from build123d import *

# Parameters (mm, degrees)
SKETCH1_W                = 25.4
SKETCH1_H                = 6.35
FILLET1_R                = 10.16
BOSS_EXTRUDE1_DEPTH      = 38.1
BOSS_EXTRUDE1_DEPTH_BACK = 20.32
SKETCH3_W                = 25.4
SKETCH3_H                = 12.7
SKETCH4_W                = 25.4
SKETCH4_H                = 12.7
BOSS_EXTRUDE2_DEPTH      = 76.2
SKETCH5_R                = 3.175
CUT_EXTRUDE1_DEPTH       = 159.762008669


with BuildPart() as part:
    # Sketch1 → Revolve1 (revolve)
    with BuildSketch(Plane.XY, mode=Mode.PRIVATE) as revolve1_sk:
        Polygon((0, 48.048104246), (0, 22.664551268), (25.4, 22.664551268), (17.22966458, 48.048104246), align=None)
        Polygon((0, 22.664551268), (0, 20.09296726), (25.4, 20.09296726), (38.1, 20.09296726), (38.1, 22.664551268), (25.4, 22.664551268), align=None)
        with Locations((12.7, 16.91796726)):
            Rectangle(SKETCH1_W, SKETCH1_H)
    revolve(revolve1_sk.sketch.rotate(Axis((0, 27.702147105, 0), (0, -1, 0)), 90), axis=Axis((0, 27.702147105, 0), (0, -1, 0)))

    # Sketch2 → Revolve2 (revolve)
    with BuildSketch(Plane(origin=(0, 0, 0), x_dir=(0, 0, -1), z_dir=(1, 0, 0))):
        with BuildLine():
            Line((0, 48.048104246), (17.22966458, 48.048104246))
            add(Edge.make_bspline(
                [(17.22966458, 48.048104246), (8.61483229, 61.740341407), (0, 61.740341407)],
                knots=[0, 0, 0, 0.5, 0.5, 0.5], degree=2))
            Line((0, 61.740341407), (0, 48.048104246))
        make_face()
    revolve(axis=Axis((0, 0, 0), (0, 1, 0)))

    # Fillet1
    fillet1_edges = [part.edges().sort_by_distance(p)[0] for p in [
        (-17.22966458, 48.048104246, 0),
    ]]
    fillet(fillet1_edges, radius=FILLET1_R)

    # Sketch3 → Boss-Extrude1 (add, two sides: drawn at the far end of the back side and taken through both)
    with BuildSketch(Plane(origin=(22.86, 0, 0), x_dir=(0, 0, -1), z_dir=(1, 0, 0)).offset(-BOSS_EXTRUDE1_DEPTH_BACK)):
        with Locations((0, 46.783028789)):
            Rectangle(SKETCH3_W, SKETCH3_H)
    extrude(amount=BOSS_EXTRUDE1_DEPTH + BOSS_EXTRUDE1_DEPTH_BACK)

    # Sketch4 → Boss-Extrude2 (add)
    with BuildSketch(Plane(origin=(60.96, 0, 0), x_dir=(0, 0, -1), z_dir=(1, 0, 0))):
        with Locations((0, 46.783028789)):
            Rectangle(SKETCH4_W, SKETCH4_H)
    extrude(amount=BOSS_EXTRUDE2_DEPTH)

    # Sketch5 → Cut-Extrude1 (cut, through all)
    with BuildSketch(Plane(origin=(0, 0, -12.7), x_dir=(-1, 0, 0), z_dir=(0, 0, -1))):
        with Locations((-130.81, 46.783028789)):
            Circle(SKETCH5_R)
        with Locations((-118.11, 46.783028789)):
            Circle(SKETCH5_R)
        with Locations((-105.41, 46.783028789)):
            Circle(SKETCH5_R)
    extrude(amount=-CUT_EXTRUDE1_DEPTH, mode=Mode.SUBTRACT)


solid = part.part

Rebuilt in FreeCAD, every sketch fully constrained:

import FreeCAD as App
import Part
import Sketcher

V = App.Vector
Q = App.Units.Quantity


def edges_at(feature, points):
    """Names of the edges that pass closest to the given points."""
    edges = feature.Shape.Edges
    near = lambda p: min(range(len(edges)), key=lambda i: edges[i].distToShape(Part.Vertex(*p))[0])
    return sorted({f"Edge{near(p) + 1}" for p in points})

doc = App.newDocument("Part")
params = doc.addObject("Spreadsheet::Sheet", "Params")
for row, (alias, value) in enumerate([
    ("sketch1_width", "1 in"),
    ("sketch1_width2", "0.5 in"),
    ("sketch1_height", "0.25 in"),
    ("revolution_angle", "360 deg"),
    ("revolution2_angle", "360 deg"),
    ("fillet_radius", "0.4 in"),
    ("sketch3_height", "1 in"),
    ("sketch3_width", "0.5 in"),
    ("pad1_length", "1.5 in"),
    ("pad1_length2", "0.8 in"),
    ("sketch4_height", "1 in"),
    ("sketch4_width", "0.5 in"),
    ("pad2_length", "3 in"),
    ("sketch5_diameter", "0.25 in"),
], start=1):
    params.set(f"A{row}", alias)
    params.set(f"B{row}", "=" + value)
    params.setAlias(f"B{row}", alias)

body = doc.addObject("PartDesign::Body", "Body")

sketch1 = body.newObject("Sketcher::SketchObject", "Sketch")
sketch1.AttachmentSupport = (doc.getObject("XY_Plane"), [""])
sketch1.MapMode = "FlatFace"
sketch1.addGeometry(Part.LineSegment(V(0, 48.048104, 0), V(0, 13.742967, 0)), False)
sketch1.addGeometry(Part.LineSegment(V(0, 13.742967, 0), V(25.4, 13.742967, 0)), False)
sketch1.addGeometry(Part.LineSegment(V(25.4, 13.742967, 0), V(25.4, 20.092967, 0)), False)
sketch1.addGeometry(Part.LineSegment(V(25.4, 20.092967, 0), V(38.1, 20.092967, 0)), False)
sketch1.addGeometry(Part.LineSegment(V(38.1, 20.092967, 0), V(38.1, 22.664551, 0)), False)
sketch1.addGeometry(Part.LineSegment(V(38.1, 22.664551, 0), V(25.4, 22.664551, 0)), False)
sketch1.addGeometry(Part.LineSegment(V(25.4, 22.664551, 0), V(17.229665, 48.048104, 0)), False)
sketch1.addGeometry(Part.LineSegment(V(17.229665, 48.048104, 0), V(0, 48.048104, 0)), False)
sketch1.addConstraint(Sketcher.Constraint("Coincident", 0, 2, 1, 1))
sketch1.addConstraint(Sketcher.Constraint("Coincident", 1, 2, 2, 1))
sketch1.addConstraint(Sketcher.Constraint("Coincident", 2, 2, 3, 1))
sketch1.addConstraint(Sketcher.Constraint("Coincident", 3, 2, 4, 1))
sketch1.addConstraint(Sketcher.Constraint("Coincident", 4, 2, 5, 1))
sketch1.addConstraint(Sketcher.Constraint("Coincident", 5, 2, 6, 1))
sketch1.addConstraint(Sketcher.Constraint("Coincident", 6, 2, 7, 1))
sketch1.addConstraint(Sketcher.Constraint("Coincident", 7, 2, 0, 1))
sketch1.addConstraint(Sketcher.Constraint("Vertical", 0))
sketch1.addConstraint(Sketcher.Constraint("Horizontal", 1))
sketch1.addConstraint(Sketcher.Constraint("Vertical", 2))
sketch1.addConstraint(Sketcher.Constraint("Horizontal", 3))
sketch1.addConstraint(Sketcher.Constraint("Vertical", 4))
sketch1.addConstraint(Sketcher.Constraint("Horizontal", 5))
sketch1.addConstraint(Sketcher.Constraint("Horizontal", 7))
sketch1.addConstraint(Sketcher.Constraint("PointOnObject", 0, 2, -2))
sketch1.addConstraint(Sketcher.Constraint("Vertical", 2, 2, 5, 2))
sketch1.addConstraint(Sketcher.Constraint("DistanceX", 1, 1, 1, 2, Q("1 in")))
sketch1.addConstraint(Sketcher.Constraint("DistanceX", 3, 1, 3, 2, Q("0.5 in")))
sketch1.addConstraint(Sketcher.Constraint("DistanceY", 2, 1, 2, 2, Q("0.25 in")))
sketch1.addConstraint(Sketcher.Constraint("DistanceX", 7, 2, 7, 1, 17.229665))
sketch1.addConstraint(Sketcher.Constraint("DistanceY", 0, 2, 0, 1, 34.305137))
sketch1.addConstraint(Sketcher.Constraint("DistanceY", 4, 1, 4, 2, 2.571584))
sketch1.addConstraint(Sketcher.Constraint("DistanceY", -1, 1, 4, 2, 22.664551))
sketch1.setExpression("Constraints[17]", "Params.sketch1_width")
sketch1.setExpression("Constraints[18]", "Params.sketch1_width2")
sketch1.setExpression("Constraints[19]", "Params.sketch1_height")
revolution = body.newObject("PartDesign::Revolution", "Revolution")
revolution.Profile = sketch1
revolution.ReferenceAxis = (sketch1, ["V_Axis"])
revolution.setExpression("Angle", "Params.revolution_angle")

sketch2 = body.newObject("Sketcher::SketchObject", "Sketch001")
sketch2.AttachmentSupport = (doc.getObject("YZ_Plane"), [""])
sketch2.MapMode = "FlatFace"
sketch2.addGeometry(Part.LineSegment(V(48.048104, 0, 0), V(48.048104, -17.229665, 0)), False)
sketch2.addGeometry(Part.BSplineCurve([V(48.048104, -17.229665, 0), V(61.740341, -8.614832, 0), V(61.740341, 0, 0)], [3, 3], [0, 0.5], False, 2, [1, 1, 1], False), False)
sketch2.addGeometry(Part.LineSegment(V(61.740341, 0, 0), V(48.048104, 0, 0)), False)
sketch2.addConstraint(Sketcher.Constraint("Block", 1))
sketch2.addConstraint(Sketcher.Constraint("Coincident", 0, 2, 1, 1))
sketch2.addConstraint(Sketcher.Constraint("Coincident", 1, 2, 2, 1))
sketch2.addConstraint(Sketcher.Constraint("Coincident", 2, 2, 0, 1))
sketch2.addConstraint(Sketcher.Constraint("Vertical", 0))
sketch2.addConstraint(Sketcher.Constraint("Horizontal", 2))
revolution2 = body.newObject("PartDesign::Revolution", "Revolution001")
revolution2.Profile = sketch2
revolution2.ReferenceAxis = (sketch2, ["H_Axis"])
revolution2.setExpression("Angle", "Params.revolution2_angle")
doc.recompute()

fillet = body.newObject("PartDesign::Fillet", "Fillet")
fillet.Base = (revolution2, edges_at(revolution2, [(-17.23, 48.048, 0)]))
fillet.setExpression("Radius", "Params.fillet_radius")

sketch3 = body.newObject("Sketcher::SketchObject", "Sketch002")
sketch3.AttachmentSupport = (doc.getObject("YZ_Plane"), [""])
sketch3.MapMode = "FlatFace"
sketch3.AttachmentOffset = App.Placement(V(0, 0, 0.9 * 25.4), App.Rotation())
sketch3.addGeometry(Part.LineSegment(V(53.133029, 12.7, 0), V(40.433029, 12.7, 0)), False)
sketch3.addGeometry(Part.LineSegment(V(40.433029, 12.7, 0), V(40.433029, -12.7, 0)), False)
sketch3.addGeometry(Part.LineSegment(V(40.433029, -12.7, 0), V(53.133029, -12.7, 0)), False)
sketch3.addGeometry(Part.LineSegment(V(53.133029, -12.7, 0), V(53.133029, 12.7, 0)), False)
sketch3.addConstraint(Sketcher.Constraint("Coincident", 0, 2, 1, 1))
sketch3.addConstraint(Sketcher.Constraint("Coincident", 1, 2, 2, 1))
sketch3.addConstraint(Sketcher.Constraint("Coincident", 2, 2, 3, 1))
sketch3.addConstraint(Sketcher.Constraint("Coincident", 3, 2, 0, 1))
sketch3.addConstraint(Sketcher.Constraint("Horizontal", 0))
sketch3.addConstraint(Sketcher.Constraint("Vertical", 1))
sketch3.addConstraint(Sketcher.Constraint("Horizontal", 2))
sketch3.addConstraint(Sketcher.Constraint("Vertical", 3))
sketch3.addConstraint(Sketcher.Constraint("DistanceY", 1, 2, 1, 1, Q("1 in")))
sketch3.addConstraint(Sketcher.Constraint("DistanceX", 0, 2, 0, 1, Q("0.5 in")))
sketch3.addConstraint(Sketcher.Constraint("DistanceY", -1, 1, 0, 2, Q("0.5 in")))
sketch3.addConstraint(Sketcher.Constraint("DistanceX", -1, 1, 0, 2, 40.433029))
sketch3.setExpression("Constraints[8]", "Params.sketch3_height")
sketch3.setExpression("Constraints[9]", "Params.sketch3_width")
pad1 = body.newObject("PartDesign::Pad", "Pad")
pad1.Profile = sketch3
pad1.Type = "TwoLengths"
pad1.setExpression("Length", "Params.pad1_length")
pad1.setExpression("Length2", "Params.pad1_length2")

sketch4 = body.newObject("Sketcher::SketchObject", "Sketch003")
sketch4.AttachmentSupport = (doc.getObject("YZ_Plane"), [""])
sketch4.MapMode = "FlatFace"
sketch4.AttachmentOffset = App.Placement(V(0, 0, 2.4 * 25.4), App.Rotation())
sketch4.addGeometry(Part.LineSegment(V(53.133029, 12.7, 0), V(40.433029, 12.7, 0)), False)
sketch4.addGeometry(Part.LineSegment(V(40.433029, 12.7, 0), V(40.433029, -12.7, 0)), False)
sketch4.addGeometry(Part.LineSegment(V(40.433029, -12.7, 0), V(53.133029, -12.7, 0)), False)
sketch4.addGeometry(Part.LineSegment(V(53.133029, -12.7, 0), V(53.133029, 12.7, 0)), False)
sketch4.addConstraint(Sketcher.Constraint("Coincident", 0, 2, 1, 1))
sketch4.addConstraint(Sketcher.Constraint("Coincident", 1, 2, 2, 1))
sketch4.addConstraint(Sketcher.Constraint("Coincident", 2, 2, 3, 1))
sketch4.addConstraint(Sketcher.Constraint("Coincident", 3, 2, 0, 1))
sketch4.addConstraint(Sketcher.Constraint("Horizontal", 0))
sketch4.addConstraint(Sketcher.Constraint("Vertical", 1))
sketch4.addConstraint(Sketcher.Constraint("Horizontal", 2))
sketch4.addConstraint(Sketcher.Constraint("Vertical", 3))
sketch4.addConstraint(Sketcher.Constraint("DistanceY", 1, 2, 1, 1, Q("1 in")))
sketch4.addConstraint(Sketcher.Constraint("DistanceX", 0, 2, 0, 1, Q("0.5 in")))
sketch4.addConstraint(Sketcher.Constraint("DistanceY", -1, 1, 0, 2, Q("0.5 in")))
sketch4.addConstraint(Sketcher.Constraint("DistanceX", -1, 1, 0, 2, 40.433029))
sketch4.setExpression("Constraints[8]", "Params.sketch4_height")
sketch4.setExpression("Constraints[9]", "Params.sketch4_width")
pad2 = body.newObject("PartDesign::Pad", "Pad001")
pad2.Profile = sketch4
pad2.setExpression("Length", "Params.pad2_length")

sketch5 = body.newObject("Sketcher::SketchObject", "Sketch004")
sketch5.AttachmentSupport = (doc.getObject("XY_Plane"), [""])
sketch5.MapMode = "FlatFace"
sketch5.AttachmentOffset = App.Placement(V(0, 0, -0.5 * 25.4), App.Rotation())
sketch5.addGeometry(Part.Circle(V(130.81, 46.783029, 0), V(0, 0, 1), 3.175), False)
sketch5.addGeometry(Part.Circle(V(118.11, 46.783029, 0), V(0, 0, 1), 3.175), False)
sketch5.addGeometry(Part.Circle(V(105.41, 46.783029, 0), V(0, 0, 1), 3.175), False)
sketch5.addConstraint(Sketcher.Constraint("Equal", 0, 1))
sketch5.addConstraint(Sketcher.Constraint("Equal", 1, 2))
sketch5.addConstraint(Sketcher.Constraint("Horizontal", 0, 3, 1, 3))
sketch5.addConstraint(Sketcher.Constraint("Horizontal", 1, 3, 2, 3))
sketch5.addConstraint(Sketcher.Constraint("Diameter", 0, Q("0.25 in")))
sketch5.addConstraint(Sketcher.Constraint("DistanceX", 2, 3, 0, 3, Q("1 in")))
sketch5.addConstraint(Sketcher.Constraint("DistanceX", 1, 3, 0, 3, Q("0.5 in")))
sketch5.addConstraint(Sketcher.Constraint("DistanceX", -1, 1, 0, 3, Q("5.15 in")))
sketch5.addConstraint(Sketcher.Constraint("DistanceY", -1, 1, 0, 3, 46.783029))
sketch5.setExpression("Constraints[4]", "Params.sketch5_diameter")
pocket1 = body.newObject("PartDesign::Pocket", "Pocket")
pocket1.Profile = sketch5
pocket1.Type = "ThroughAll"
pocket1.Reversed = True

doc.recompute()
